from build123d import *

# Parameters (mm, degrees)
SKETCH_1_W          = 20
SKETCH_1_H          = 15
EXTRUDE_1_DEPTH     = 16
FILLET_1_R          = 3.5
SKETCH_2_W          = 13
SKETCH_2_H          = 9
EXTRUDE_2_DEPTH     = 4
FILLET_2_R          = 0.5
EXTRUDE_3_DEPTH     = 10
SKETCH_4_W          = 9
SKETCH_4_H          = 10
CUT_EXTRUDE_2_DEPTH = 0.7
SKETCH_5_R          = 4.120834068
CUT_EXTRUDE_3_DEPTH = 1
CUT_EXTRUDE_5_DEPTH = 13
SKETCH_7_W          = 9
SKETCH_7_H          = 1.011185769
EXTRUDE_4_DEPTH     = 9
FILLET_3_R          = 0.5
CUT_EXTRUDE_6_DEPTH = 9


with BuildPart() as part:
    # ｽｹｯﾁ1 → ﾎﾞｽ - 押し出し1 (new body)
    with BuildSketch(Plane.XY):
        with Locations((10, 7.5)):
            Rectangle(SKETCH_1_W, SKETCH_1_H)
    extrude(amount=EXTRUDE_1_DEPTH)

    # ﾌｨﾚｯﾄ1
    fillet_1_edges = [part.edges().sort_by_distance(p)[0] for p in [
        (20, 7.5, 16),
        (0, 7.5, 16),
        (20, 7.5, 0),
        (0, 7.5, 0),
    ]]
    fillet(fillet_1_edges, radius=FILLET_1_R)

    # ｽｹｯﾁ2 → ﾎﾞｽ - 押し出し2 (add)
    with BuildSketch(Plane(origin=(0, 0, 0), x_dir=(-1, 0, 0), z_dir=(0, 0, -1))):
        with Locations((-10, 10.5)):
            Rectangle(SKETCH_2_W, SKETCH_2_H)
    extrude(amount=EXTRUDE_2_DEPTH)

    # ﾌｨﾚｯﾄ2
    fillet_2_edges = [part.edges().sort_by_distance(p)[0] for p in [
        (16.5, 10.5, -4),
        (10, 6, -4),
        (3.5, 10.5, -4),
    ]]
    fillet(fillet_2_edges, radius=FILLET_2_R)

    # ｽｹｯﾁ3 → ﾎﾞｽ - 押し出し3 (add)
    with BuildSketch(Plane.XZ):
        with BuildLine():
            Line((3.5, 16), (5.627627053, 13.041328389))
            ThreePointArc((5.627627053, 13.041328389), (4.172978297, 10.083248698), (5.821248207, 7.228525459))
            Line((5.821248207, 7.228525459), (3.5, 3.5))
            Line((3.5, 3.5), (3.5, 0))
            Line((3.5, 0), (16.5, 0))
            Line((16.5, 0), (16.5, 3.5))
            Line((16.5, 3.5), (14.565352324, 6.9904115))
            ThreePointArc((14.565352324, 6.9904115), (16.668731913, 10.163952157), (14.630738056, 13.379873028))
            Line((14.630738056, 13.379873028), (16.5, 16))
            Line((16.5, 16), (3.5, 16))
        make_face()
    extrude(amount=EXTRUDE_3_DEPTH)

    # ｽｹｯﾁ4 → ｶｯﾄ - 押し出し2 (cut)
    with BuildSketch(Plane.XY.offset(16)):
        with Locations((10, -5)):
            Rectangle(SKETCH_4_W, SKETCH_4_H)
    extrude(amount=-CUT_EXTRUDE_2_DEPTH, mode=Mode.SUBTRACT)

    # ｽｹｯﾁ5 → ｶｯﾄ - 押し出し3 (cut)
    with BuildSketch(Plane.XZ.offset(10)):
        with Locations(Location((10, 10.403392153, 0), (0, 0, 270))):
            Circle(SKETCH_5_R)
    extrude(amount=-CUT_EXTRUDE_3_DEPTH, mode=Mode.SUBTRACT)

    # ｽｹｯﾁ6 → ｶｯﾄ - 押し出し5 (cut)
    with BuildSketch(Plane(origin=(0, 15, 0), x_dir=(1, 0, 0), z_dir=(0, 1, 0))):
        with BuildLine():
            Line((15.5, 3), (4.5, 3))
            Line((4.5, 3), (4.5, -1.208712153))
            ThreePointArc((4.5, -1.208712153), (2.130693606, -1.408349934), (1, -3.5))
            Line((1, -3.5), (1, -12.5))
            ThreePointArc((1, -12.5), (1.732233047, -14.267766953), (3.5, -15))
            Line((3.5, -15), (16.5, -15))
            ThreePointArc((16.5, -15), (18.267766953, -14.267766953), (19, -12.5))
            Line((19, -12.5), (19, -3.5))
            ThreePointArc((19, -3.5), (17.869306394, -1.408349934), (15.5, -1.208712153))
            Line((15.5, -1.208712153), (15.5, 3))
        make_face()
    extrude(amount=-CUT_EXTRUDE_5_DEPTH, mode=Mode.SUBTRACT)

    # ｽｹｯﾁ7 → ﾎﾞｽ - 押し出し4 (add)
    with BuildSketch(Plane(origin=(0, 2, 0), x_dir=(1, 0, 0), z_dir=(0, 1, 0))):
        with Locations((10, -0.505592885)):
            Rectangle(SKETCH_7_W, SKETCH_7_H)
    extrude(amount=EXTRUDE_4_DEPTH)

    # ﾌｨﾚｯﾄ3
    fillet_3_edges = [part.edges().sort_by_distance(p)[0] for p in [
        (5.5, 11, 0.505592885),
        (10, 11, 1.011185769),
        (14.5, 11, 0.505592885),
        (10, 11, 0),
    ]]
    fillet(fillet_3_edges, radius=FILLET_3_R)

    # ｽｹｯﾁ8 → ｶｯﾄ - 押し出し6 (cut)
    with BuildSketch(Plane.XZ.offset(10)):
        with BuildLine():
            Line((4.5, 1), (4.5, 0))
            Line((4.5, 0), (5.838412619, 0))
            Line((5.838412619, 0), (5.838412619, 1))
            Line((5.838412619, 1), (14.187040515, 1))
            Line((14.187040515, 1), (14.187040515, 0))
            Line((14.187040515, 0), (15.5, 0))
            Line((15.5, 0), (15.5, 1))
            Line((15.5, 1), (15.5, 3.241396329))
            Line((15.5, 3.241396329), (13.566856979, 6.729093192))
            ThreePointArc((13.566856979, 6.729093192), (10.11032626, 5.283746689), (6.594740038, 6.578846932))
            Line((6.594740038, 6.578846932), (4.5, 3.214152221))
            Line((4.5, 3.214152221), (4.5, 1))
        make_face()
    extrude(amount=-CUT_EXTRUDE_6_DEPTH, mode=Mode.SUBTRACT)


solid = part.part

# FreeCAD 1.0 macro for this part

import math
import FreeCAD as App
import Part
import Sketcher

V = App.Vector


def edges_at(feature, points):
    """Names of the edges that pass closest to the given points."""
    edges = feature.Shape.Edges
    near = lambda p: min(range(len(edges)), key=lambda i: edges[i].distToShape(Part.Vertex(*p))[0])
    return sorted({f"Edge{near(p) + 1}" for p in points})

doc = App.newDocument("Part")
body = doc.addObject("PartDesign::Body", "Body")

# Sketch on XY plane
sketch1 = body.newObject("Sketcher::SketchObject", "Sketch")
sketch1.AttachmentSupport = (doc.getObject("XY_Plane"), [""])
sketch1.MapMode = "FlatFace"
sketch1.addGeometry(Part.LineSegment(V(0, 15, 0), V(0, 0, 0)), False)
sketch1.addGeometry(Part.LineSegment(V(0, 0, 0), V(20, 0, 0)), False)
sketch1.addGeometry(Part.LineSegment(V(20, 0, 0), V(20, 15, 0)), False)
sketch1.addGeometry(Part.LineSegment(V(20, 15, 0), V(0, 15, 0)), False)
sketch1.addConstraint(Sketcher.Constraint("Coincident", 0, 2, 1, 1))
sketch1.addConstraint(Sketcher.Constraint("Coincident", 1, 2, 2, 1))
sketch1.addConstraint(Sketcher.Constraint("Coincident", 2, 2, 3, 1))
sketch1.addConstraint(Sketcher.Constraint("Coincident", 3, 2, 0, 1))
sketch1.addConstraint(Sketcher.Constraint("Vertical", 0))
sketch1.addConstraint(Sketcher.Constraint("Horizontal", 1))
sketch1.addConstraint(Sketcher.Constraint("Vertical", 2))
sketch1.addConstraint(Sketcher.Constraint("Horizontal", 3))
sketch1.addConstraint(Sketcher.Constraint("Coincident", 0, 2, -1, 1))
sketch1.addConstraint(Sketcher.Constraint("DistanceX", 1, 1, 1, 2, 20.0))
sketch1.addConstraint(Sketcher.Constraint("DistanceY", 0, 2, 0, 1, 15.0))
pad1 = body.newObject("PartDesign::Pad", "Pad")
pad1.Profile = sketch1
pad1.Length = 16
doc.recompute()

fillet = body.newObject("PartDesign::Fillet", "Fillet")
fillet.Base = (pad1, edges_at(pad1, [
    (20, 7.5, 16),
    (0, 7.5, 16),
    (20, 7.5, 0),
    (0, 7.5, 0),
]))
fillet.Radius = 3.5

# Sketch on XY plane
sketch2 = body.newObject("Sketcher::SketchObject", "Sketch001")
sketch2.AttachmentSupport = (doc.getObject("XY_Plane"), [""])
sketch2.MapMode = "FlatFace"
sketch2.addGeometry(Part.LineSegment(V(16.5, 15, 0), V(16.5, 6, 0)), False)
sketch2.addGeometry(Part.LineSegment(V(16.5, 6, 0), V(3.5, 6, 0)), False)
sketch2.addGeometry(Part.LineSegment(V(3.5, 6, 0), V(3.5, 15, 0)), False)
sketch2.addGeometry(Part.LineSegment(V(3.5, 15, 0), V(16.5, 15, 0)), False)
sketch2.addConstraint(Sketcher.Constraint("Coincident", 0, 2, 1, 1))
sketch2.addConstraint(Sketcher.Constraint("Coincident", 1, 2, 2, 1))
sketch2.addConstraint(Sketcher.Constraint("Coincident", 2, 2, 3, 1))
sketch2.addConstraint(Sketcher.Constraint("Coincident", 3, 2, 0, 1))
sketch2.addConstraint(Sketcher.Constraint("Vertical", 0))
sketch2.addConstraint(Sketcher.Constraint("Horizontal", 1))
sketch2.addConstraint(Sketcher.Constraint("Vertical", 2))
sketch2.addConstraint(Sketcher.Constraint("Horizontal", 3))
sketch2.addConstraint(Sketcher.Constraint("DistanceX", 1, 2, 1, 1, 13.0))
sketch2.addConstraint(Sketcher.Constraint("DistanceY", 0, 2, 0, 1, 9.0))
sketch2.addConstraint(Sketcher.Constraint("DistanceY", -1, 1, 0, 2, 6.0))
sketch2.addConstraint(Sketcher.Constraint("DistanceX", -1, 1, 0, 2, 16.5))
pad2 = body.newObject("PartDesign::Pad", "Pad001")
pad2.Profile = sketch2
pad2.Length = 4
pad2.Reversed = True
doc.recompute()

fillet2 = body.newObject("PartDesign::Fillet", "Fillet001")
fillet2.Base = (pad2, edges_at(pad2, [(16.5, 10.5, -4), (10, 6, -4), (3.5, 10.5, -4)]))
fillet2.Radius = 0.5

# Sketch on XZ plane
sketch3 = body.newObject("Sketcher::SketchObject", "Sketch002")
sketch3.AttachmentSupport = (doc.getObject("XZ_Plane"), [""])
sketch3.MapMode = "FlatFace"
sketch3.addGeometry(Part.LineSegment(V(3.5, 16, 0), V(5.627627, 13.041328, 0)), False)
sketch3.addGeometry(Part.ArcOfCircle(Part.Circle(V(7.671038, 10.199767, 0), V(0, 0, 1), 3.5), math.radians(125.720503), math.radians(238.095066)), False)
sketch3.addGeometry(Part.LineSegment(V(5.821248, 7.228525, 0), V(3.5, 3.5, 0)), False)
sketch3.addGeometry(Part.LineSegment(V(3.5, 3.5, 0), V(3.5, 0, 0)), False)
sketch3.addGeometry(Part.LineSegment(V(3.5, 0, 0), V(16.5, 0, 0)), False)
sketch3.addGeometry(Part.LineSegment(V(16.5, 0, 0), V(16.5, 3.5, 0)), False)
sketch3.addGeometry(Part.LineSegment(V(16.5, 3.5, 0), V(14.565352, 6.990411, 0)), False)
sketch3.addGeometry(Part.ArcOfCircle(Part.Circle(V(13.168915, 10.199767, 0), V(0, 0, 1), 3.5), math.radians(-66.485443), math.radians(65.312826)), False)
sketch3.addGeometry(Part.LineSegment(V(14.630738, 13.379873, 0), V(16.5, 16, 0)), False)
sketch3.addGeometry(Part.LineSegment(V(16.5, 16, 0), V(3.5, 16, 0)), False)
sketch3.addConstraint(Sketcher.Constraint("Coincident", 0, 2, 1, 1))
sketch3.addConstraint(Sketcher.Constraint("Coincident", 1, 2, 2, 1))
sketch3.addConstraint(Sketcher.Constraint("Coincident", 2, 2, 3, 1))
sketch3.addConstraint(Sketcher.Constraint("Coincident", 3, 2, 4, 1))
sketch3.addConstraint(Sketcher.Constraint("Coincident", 4, 2, 5, 1))
sketch3.addConstraint(Sketcher.Constraint("Coincident", 5, 2, 6, 1))
sketch3.addConstraint(Sketcher.Constraint("Coincident", 6, 2, 7, 1))
sketch3.addConstraint(Sketcher.Constraint("Coincident", 7, 2, 8, 1))
sketch3.addConstraint(Sketcher.Constraint("Coincident", 8, 2, 9, 1))
sketch3.addConstraint(Sketcher.Constraint("Coincident", 9, 2, 0, 1))
sketch3.addConstraint(Sketcher.Constraint("Vertical", 3))
sketch3.addConstraint(Sketcher.Constraint("Horizontal", 4))
sketch3.addConstraint(Sketcher.Constraint("Vertical", 5))
sketch3.addConstraint(Sketcher.Constraint("Horizontal", 9))
sketch3.addConstraint(Sketcher.Constraint("Equal", 1, 7))
sketch3.addConstraint(Sketcher.Constraint("PointOnObject", 3, 2, -1))
sketch3.addConstraint(Sketcher.Constraint("Horizontal", 1, 3, 7, 3))
sketch3.addConstraint(Sketcher.Constraint("Horizontal", 2, 2, 5, 2))
sketch3.addConstraint(Sketcher.Constraint("Vertical", 5, 2, 8, 2))
sketch3.addConstraint(Sketcher.Constraint("Vertical", 3, 2, 9, 2))
sketch3.addConstraint(Sketcher.Constraint("Radius", 1, 3.5))
sketch3.addConstraint(Sketcher.Constraint("DistanceX", 4, 1, 4, 2, 13.0))
sketch3.addConstraint(Sketcher.Constraint("DistanceY", 3, 2, 3, 1, 3.5))
sketch3.addConstraint(Sketcher.Constraint("DistanceY", -1, 1, 8, 2, 16.0))
sketch3.addConstraint(Sketcher.Constraint("DistanceX", -1, 1, 2, 2, 3.5))
sketch3.addConstraint(Sketcher.Constraint("DistanceX", 1, 3, 7, 2, 6.9597))
sketch3.addConstraint(Sketcher.Constraint("Distance", 2, 4.392049))
sketch3.addConstraint(Sketcher.Constraint("Distance", 6, 3.990718))
sketch3.addConstraint(Sketcher.Constraint("Distance", 8, 3.218572))
sketch3.addConstraint(Sketcher.Constraint("DistanceX", -1, 1, 1, 3, 7.671038))
sketch3.addConstraint(Sketcher.Constraint("DistanceY", -1, 1, 0, 2, 13.041328))
sketch3.addConstraint(Sketcher.Constraint("DistanceX", -1, 1, 1, 2, 5.821248))
pad3 = body.newObject("PartDesign::Pad", "Pad002")
pad3.Profile = sketch3
pad3.Length = 10

# Sketch on XY plane
sketch4 = body.newObject("Sketcher::SketchObject", "Sketch003")
sketch4.AttachmentSupport = (doc.getObject("XY_Plane"), [""])
sketch4.MapMode = "FlatFace"
sketch4.AttachmentOffset = App.Placement(V(0, 0, 16), App.Rotation())
sketch4.addGeometry(Part.LineSegment(V(5.5, 0, 0), V(5.5, -10, 0)), False)
sketch4.addGeometry(Part.LineSegment(V(5.5, -10, 0), V(14.5, -10, 0)), False)
sketch4.addGeometry(Part.LineSegment(V(14.5, -10, 0), V(14.5, 0, 0)), False)
sketch4.addGeometry(Part.LineSegment(V(14.5, 0, 0), V(5.5, 0, 0)), False)
sketch4.addConstraint(Sketcher.Constraint("Coincident", 0, 2, 1, 1))
sketch4.addConstraint(Sketcher.Constraint("Coincident", 1, 2, 2, 1))
sketch4.addConstraint(Sketcher.Constraint("Coincident", 2, 2, 3, 1))
sketch4.addConstraint(Sketcher.Constraint("Coincident", 3, 2, 0, 1))
sketch4.addConstraint(Sketcher.Constraint("Vertical", 0))
sketch4.addConstraint(Sketcher.Constraint("Horizontal", 1))
sketch4.addConstraint(Sketcher.Constraint("Vertical", 2))
sketch4.addConstraint(Sketcher.Constraint("Horizontal", 3))
sketch4.addConstraint(Sketcher.Constraint("PointOnObject", 2, 2, -1))
sketch4.addConstraint(Sketcher.Constraint("DistanceX", 1, 1, 1, 2, 9.0))
sketch4.addConstraint(Sketcher.Constraint("DistanceY", 0, 2, 0, 1, 10.0))
sketch4.addConstraint(Sketcher.Constraint("DistanceX", -1, 1, 0, 2, 5.5))
pocket1 = body.newObject("PartDesign::Pocket", "Pocket")
pocket1.Profile = sketch4
pocket1.Length = 0.7

# Sketch on XZ plane
sketch5 = body.newObject("Sketcher::SketchObject", "Sketch004")
sketch5.AttachmentSupport = (doc.getObject("XZ_Plane"), [""])
sketch5.MapMode = "FlatFace"
sketch5.AttachmentOffset = App.Placement(V(0, 0, 10), App.Rotation())
sketch5.addGeometry(Part.Circle(V(10, 10.403392, 0), V(0, 0, 1), 4.120834), False)
sketch5.addConstraint(Sketcher.Constraint("DistanceX", -1, 1, 0, 3, 10.0))
sketch5.addConstraint(Sketcher.Constraint("Diameter", 0, 8.241668))
sketch5.addConstraint(Sketcher.Constraint("DistanceY", -1, 1, 0, 3, 10.403392))
pocket2 = body.newObject("PartDesign::Pocket", "Pocket001")
pocket2.Profile = sketch5
pocket2.Length = 1

# Sketch on XZ plane
sketch6 = body.newObject("Sketcher::SketchObject", "Sketch005")
sketch6.AttachmentSupport = (doc.getObject("XZ_Plane"), [""])
sketch6.MapMode = "FlatFace"
sketch6.AttachmentOffset = App.Placement(V(0, 0, -15), App.Rotation())
sketch6.addGeometry(Part.LineSegment(V(15.5, -3, 0), V(4.5, -3, 0)), False)
sketch6.addGeometry(Part.LineSegment(V(4.5, -3, 0), V(4.5, 1.208712, 0)), False)
sketch6.addGeometry(Part.ArcOfCircle(Part.Circle(V(3.5, 3.5, 0), V(0, 0, 1), 2.5), math.radians(180), math.radians(293.578178)), False)
sketch6.addGeometry(Part.LineSegment(V(1, 3.5, 0), V(1, 12.5, 0)), False)
sketch6.addGeometry(Part.ArcOfCircle(Part.Circle(V(3.5, 12.5, 0), V(0, 0, 1), 2.5), math.radians(90), math.radians(180)), False)
sketch6.addGeometry(Part.LineSegment(V(3.5, 15, 0), V(16.5, 15, 0)), False)
sketch6.addGeometry(Part.ArcOfCircle(Part.Circle(V(16.5, 12.5, 0), V(0, 0, 1), 2.5), math.radians(0), math.radians(90)), False)
sketch6.addGeometry(Part.LineSegment(V(19, 12.5, 0), V(19, 3.5, 0)), False)
sketch6.addGeometry(Part.ArcOfCircle(Part.Circle(V(16.5, 3.5, 0), V(0, 0, 1), 2.5), math.radians(-113.578178), math.radians(0)), False)
sketch6.addGeometry(Part.LineSegment(V(15.5, 1.208712, 0), V(15.5, -3, 0)), False)
sketch6.addConstraint(Sketcher.Constraint("Coincident", 0, 2, 1, 1))
sketch6.addConstraint(Sketcher.Constraint("Coincident", 1, 2, 2, 2))
sketch6.addConstraint(Sketcher.Constraint("Tangent", 2, 1, 3, 1))
sketch6.addConstraint(Sketcher.Constraint("Tangent", 3, 2, 4, 2))
sketch6.addConstraint(Sketcher.Constraint("Tangent", 4, 1, 5, 1))
sketch6.addConstraint(Sketcher.Constraint("Tangent", 5, 2, 6, 2))
sketch6.addConstraint(Sketcher.Constraint("Tangent", 6, 1, 7, 1))
sketch6.addConstraint(Sketcher.Constraint("Tangent", 7, 2, 8, 2))
sketch6.addConstraint(Sketcher.Constraint("Coincident", 8, 1, 9, 1))
sketch6.addConstraint(Sketcher.Constraint("Coincident", 9, 2, 0, 1))
sketch6.addConstraint(Sketcher.Constraint("Horizontal", 0))
sketch6.addConstraint(Sketcher.Constraint("Vertical", 1))
sketch6.addConstraint(Sketcher.Constraint("Vertical", 3))
sketch6.addConstraint(Sketcher.Constraint("Horizontal", 5))
sketch6.addConstraint(Sketcher.Constraint("Vertical", 7))
sketch6.addConstraint(Sketcher.Constraint("Vertical", 9))
sketch6.addConstraint(Sketcher.Constraint("Equal", 2, 4))
sketch6.addConstraint(Sketcher.Constraint("Equal", 4, 6))
sketch6.addConstraint(Sketcher.Constraint("Equal", 6, 8))
sketch6.addConstraint(Sketcher.Constraint("Horizontal", 2, 3, 8, 3))
sketch6.addConstraint(Sketcher.Constraint("Horizontal", 1, 2, 8, 1))
sketch6.addConstraint(Sketcher.Constraint("Radius", 2, 2.5))
sketch6.addConstraint(Sketcher.Constraint("DistanceX", 0, 2, 0, 1, 11.0))
sketch6.addConstraint(Sketcher.Constraint("DistanceX", 5, 1, 5, 2, 13.0))
sketch6.addConstraint(Sketcher.Constraint("DistanceY", 3, 1, 3, 2, 9.0))
sketch6.addConstraint(Sketcher.Constraint("DistanceY", 0, 2, -1, 1, 3.0))
sketch6.addConstraint(Sketcher.Constraint("DistanceX", -1, 1, 2, 1, 1.0))
sketch6.addConstraint(Sketcher.Constraint("DistanceY", -1, 1, 4, 1, 15.0))
pocket3 = body.newObject("PartDesign::Pocket", "Pocket002")
pocket3.Profile = sketch6
pocket3.Length = 13
pocket3.Reversed = True

# Sketch on XZ plane
sketch7 = body.newObject("Sketcher::SketchObject", "Sketch006")
sketch7.AttachmentSupport = (doc.getObject("XZ_Plane"), [""])
sketch7.MapMode = "FlatFace"
sketch7.AttachmentOffset = App.Placement(V(0, 0, -2), App.Rotation())
sketch7.addGeometry(Part.LineSegment(V(5.5, 0, 0), V(5.5, 1.011186, 0)), False)
sketch7.addGeometry(Part.LineSegment(V(5.5, 1.011186, 0), V(14.5, 1.011186, 0)), False)
sketch7.addGeometry(Part.LineSegment(V(14.5, 1.011186, 0), V(14.5, 0, 0)), False)
sketch7.addGeometry(Part.LineSegment(V(14.5, 0, 0), V(5.5, 0, 0)), False)
sketch7.addConstraint(Sketcher.Constraint("Coincident", 0, 2, 1, 1))
sketch7.addConstraint(Sketcher.Constraint("Coincident", 1, 2, 2, 1))
sketch7.addConstraint(Sketcher.Constraint("Coincident", 2, 2, 3, 1))
sketch7.addConstraint(Sketcher.Constraint("Coincident", 3, 2, 0, 1))
sketch7.addConstraint(Sketcher.Constraint("Vertical", 0))
sketch7.addConstraint(Sketcher.Constraint("Horizontal", 1))
sketch7.addConstraint(Sketcher.Constraint("Vertical", 2))
sketch7.addConstraint(Sketcher.Constraint("Horizontal", 3))
sketch7.addConstraint(Sketcher.Constraint("PointOnObject", 2, 2, -1))
sketch7.addConstraint(Sketcher.Constraint("DistanceX", 1, 1, 1, 2, 9.0))
sketch7.addConstraint(Sketcher.Constraint("DistanceX", -1, 1, 0, 2, 5.5))
sketch7.addConstraint(Sketcher.Constraint("DistanceY", 0, 1, 0, 2, 1.011186))
pad4 = body.newObject("PartDesign::Pad", "Pad003")
pad4.Profile = sketch7
pad4.Length = 9
pad4.Reversed = True
doc.recompute()

fillet3 = body.newObject("PartDesign::Fillet", "Fillet002")
fillet3.Base = (pad4, edges_at(pad4, [
    (5.5, 11, 0.506),
    (10, 11, 1.011),
    (14.5, 11, 0.506),
    (10, 11, 0),
]))
fillet3.Radius = 0.5

# Sketch on XZ plane
sketch8 = body.newObject("Sketcher::SketchObject", "Sketch007")
sketch8.AttachmentSupport = (doc.getObject("XZ_Plane"), [""])
sketch8.MapMode = "FlatFace"
sketch8.AttachmentOffset = App.Placement(V(0, 0, 10), App.Rotation())
sketch8.addGeometry(Part.LineSegment(V(4.5, 0, 0), V(5.838413, 0, 0)), False)
sketch8.addGeometry(Part.LineSegment(V(5.838413, 0, 0), V(5.838413, 1, 0)), False)
sketch8.addGeometry(Part.LineSegment(V(5.838413, 1, 0), V(14.187041, 1, 0)), False)
sketch8.addGeometry(Part.LineSegment(V(14.187041, 1, 0), V(14.187041, 0, 0)), False)
sketch8.addGeometry(Part.LineSegment(V(14.187041, 0, 0), V(15.5, 0, 0)), False)
sketch8.addGeometry(Part.LineSegment(V(15.5, 0, 0), V(15.5, 3.241396, 0)), False)
sketch8.addGeometry(Part.LineSegment(V(15.5, 3.241396, 0), V(13.566857, 6.729093, 0)), False)
sketch8.addGeometry(Part.ArcOfCircle(Part.Circle(V(10, 10.403392, 0), V(0, 0, 1), 5.120834), math.radians(-131.680907), math.radians(-45.850074)), False)
sketch8.addGeometry(Part.LineSegment(V(6.59474, 6.578847, 0), V(4.5, 3.214152, 0)), False)
sketch8.addGeometry(Part.LineSegment(V(4.5, 3.214152, 0), V(4.5, 0, 0)), False)
sketch8.addConstraint(Sketcher.Constraint("Coincident", 0, 2, 1, 1))
sketch8.addConstraint(Sketcher.Constraint("Coincident", 1, 2, 2, 1))
sketch8.addConstraint(Sketcher.Constraint("Coincident", 2, 2, 3, 1))
sketch8.addConstraint(Sketcher.Constraint("Coincident", 3, 2, 4, 1))
sketch8.addConstraint(Sketcher.Constraint("Coincident", 4, 2, 5, 1))
sketch8.addConstraint(Sketcher.Constraint("Coincident", 5, 2, 6, 1))
sketch8.addConstraint(Sketcher.Constraint("Coincident", 6, 2, 7, 2))
sketch8.addConstraint(Sketcher.Constraint("Coincident", 7, 1, 8, 1))
sketch8.addConstraint(Sketcher.Constraint("Coincident", 8, 2, 9, 1))
sketch8.addConstraint(Sketcher.Constraint("Coincident", 9, 2, 0, 1))
sketch8.addConstraint(Sketcher.Constraint("Horizontal", 0))
sketch8.addConstraint(Sketcher.Constraint("Vertical", 1))
sketch8.addConstraint(Sketcher.Constraint("Horizontal", 2))
sketch8.addConstraint(Sketcher.Constraint("Vertical", 3))
sketch8.addConstraint(Sketcher.Constraint("Horizontal", 4))
sketch8.addConstraint(Sketcher.Constraint("Vertical", 5))
sketch8.addConstraint(Sketcher.Constraint("Vertical", 9))
sketch8.addConstraint(Sketcher.Constraint("PointOnObject", 0, 2, -1))
sketch8.addConstraint(Sketcher.Constraint("PointOnObject", 3, 2, -1))
sketch8.addConstraint(Sketcher.Constraint("DistanceY", 1, 1, 1, 2, 1.0))
sketch8.addConstraint(Sketcher.Constraint("DistanceX", -1, 1, 7, 3, 10.0))
sketch8.addConstraint(Sketcher.Constraint("DistanceX", -1, 1, 4, 2, 15.5))
sketch8.addConstraint(Sketcher.Constraint("DistanceX", -1, 1, 8, 2, 4.5))
sketch8.addConstraint(Sketcher.Constraint("Radius", 7, 5.120834))
sketch8.addConstraint(Sketcher.Constraint("DistanceX", 4, 1, 4, 2, 1.312959))
sketch8.addConstraint(Sketcher.Constraint("DistanceY", 6, 2, 7, 3, 3.674299))
sketch8.addConstraint(Sketcher.Constraint("DistanceX", 7, 1, 2, 2, 7.5923))
sketch8.addConstraint(Sketcher.Constraint("Distance", 8, 3.963471))
sketch8.addConstraint(Sketcher.Constraint("DistanceX", 0, 1, 0, 2, 1.338413))
sketch8.addConstraint(Sketcher.Constraint("DistanceY", 5, 1, 5, 2, 3.241396))
sketch8.addConstraint(Sketcher.Constraint("DistanceY", 9, 2, 9, 1, 3.214152))
pocket4 = body.newObject("PartDesign::Pocket", "Pocket003")
pocket4.Profile = sketch8
pocket4.Length = 9

doc.recompute()
